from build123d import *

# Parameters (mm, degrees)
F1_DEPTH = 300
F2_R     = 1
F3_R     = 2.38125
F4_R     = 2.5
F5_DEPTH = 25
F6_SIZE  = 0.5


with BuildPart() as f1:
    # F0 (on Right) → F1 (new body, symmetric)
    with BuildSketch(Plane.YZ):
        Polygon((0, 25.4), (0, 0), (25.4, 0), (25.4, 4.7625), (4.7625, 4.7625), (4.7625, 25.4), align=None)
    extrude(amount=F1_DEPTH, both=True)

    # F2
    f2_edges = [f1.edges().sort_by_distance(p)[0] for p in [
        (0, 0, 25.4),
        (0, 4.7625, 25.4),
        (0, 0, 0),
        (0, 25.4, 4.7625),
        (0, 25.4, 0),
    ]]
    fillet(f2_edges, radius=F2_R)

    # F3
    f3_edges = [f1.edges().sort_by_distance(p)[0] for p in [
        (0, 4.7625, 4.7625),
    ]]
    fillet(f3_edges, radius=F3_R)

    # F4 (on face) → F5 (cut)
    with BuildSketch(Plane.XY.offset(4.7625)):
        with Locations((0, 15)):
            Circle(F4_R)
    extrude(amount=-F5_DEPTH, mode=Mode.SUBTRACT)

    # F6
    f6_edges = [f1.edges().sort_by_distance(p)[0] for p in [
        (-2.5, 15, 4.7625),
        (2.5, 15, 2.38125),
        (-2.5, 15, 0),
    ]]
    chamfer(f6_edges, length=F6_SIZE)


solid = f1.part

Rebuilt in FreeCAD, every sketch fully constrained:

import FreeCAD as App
import Part
import Sketcher

V = App.Vector
Q = App.Units.Quantity


def edges_at(feature, points):
    """Names of the edges that pass closest to the given points."""
    edges = feature.Shape.Edges
    near = lambda p: min(range(len(edges)), key=lambda i: edges[i].distToShape(Part.Vertex(*p))[0])
    return sorted({f"Edge{near(p) + 1}" for p in points})


def add_polygon(sketch, points):
    """Adds a closed chain of lines whose ends are joined by coincident constraints."""
    first, n = sketch.GeometryCount, len(points)
    for a, b in zip(points, points[1:] + points[:1]):
        sketch.addGeometry(Part.LineSegment(App.Vector(*a, 0), App.Vector(*b, 0)), False)
    for i in range(n):
        sketch.addConstraint(Sketcher.Constraint("Coincident", first + i, 2, first + (i + 1) % n, 1))

doc = App.newDocument("Part")
body = doc.addObject("PartDesign::Body", "Body")

# Sketch on YZ plane
sketch1 = body.newObject("Sketcher::SketchObject", "Sketch")
sketch1.AttachmentSupport = (doc.getObject("YZ_Plane"), [""])
sketch1.MapMode = "FlatFace"
add_polygon(sketch1, [(0, 25.4), (0, 0), (25.4, 0), (25.4, 4.8), (4.8, 4.8), (4.8, 25.4)])  # lines 0-5
sketch1.addConstraint([
    Sketcher.Constraint("Vertical", 0),
    Sketcher.Constraint("Horizontal", 1),
    Sketcher.Constraint("Vertical", 2),
    Sketcher.Constraint("Horizontal", 3),
    Sketcher.Constraint("Vertical", 4),
    Sketcher.Constraint("Horizontal", 5),
    Sketcher.Constraint("Coincident", 0, 2, -1, 1),
    Sketcher.Constraint("Equal", 1, 0),
    Sketcher.Constraint("Equal", 5, 2),
    Sketcher.Constraint("DistanceX", 1, 1, 1, 2, Q("25.4 mm")),
    Sketcher.Constraint("DistanceX", 3, 2, 3, 1, Q("20.6375 mm")),
])
pad1 = body.newObject("PartDesign::Pad", "Pad")
pad1.Profile = sketch1
pad1.Length = 600
pad1.Midplane = True
doc.recompute()

fillet = body.newObject("PartDesign::Fillet", "Fillet")
fillet.Base = (pad1, edges_at(pad1, [
    (0, 0, 25.4),
    (0, 4.763, 25.4),
    (0, 0, 0),
    (0, 25.4, 4.763),
    (0, 25.4, 0),
]))
fillet.Radius = 1
doc.recompute()

fillet2 = body.newObject("PartDesign::Fillet", "Fillet001")
fillet2.Base = (fillet, edges_at(fillet, [(0, 4.763, 4.763)]))
fillet2.Radius = 2.38125

# Sketch on XY plane
sketch2 = body.newObject("Sketcher::SketchObject", "Sketch001")
sketch2.AttachmentSupport = (doc.getObject("XY_Plane"), [""])
sketch2.MapMode = "FlatFace"
sketch2.AttachmentOffset = App.Placement(V(0, 0, 4.7625), App.Rotation())
sketch2.addGeometry(Part.Circle(V(0, 15, 0), V(0, 0, 1), 2.5), False)
sketch2.addConstraint([
    Sketcher.Constraint("PointOnObject", 0, 3, -2),
    Sketcher.Constraint("Diameter", 0, Q("5 mm")),
    Sketcher.Constraint("DistanceY", -1, 1, 0, 3, Q("15 mm")),
])
pocket1 = body.newObject("PartDesign::Pocket", "Pocket")
pocket1.Profile = sketch2
pocket1.Length = 25
doc.recompute()

chamfer = body.newObject("PartDesign::Chamfer", "Chamfer")
chamfer.Base = (pocket1, edges_at(pocket1, [(-2.5, 15, 4.763), (2.5, 15, 2.381), (-2.5, 15, 0)]))
chamfer.Size = 0.5

doc.recompute()
